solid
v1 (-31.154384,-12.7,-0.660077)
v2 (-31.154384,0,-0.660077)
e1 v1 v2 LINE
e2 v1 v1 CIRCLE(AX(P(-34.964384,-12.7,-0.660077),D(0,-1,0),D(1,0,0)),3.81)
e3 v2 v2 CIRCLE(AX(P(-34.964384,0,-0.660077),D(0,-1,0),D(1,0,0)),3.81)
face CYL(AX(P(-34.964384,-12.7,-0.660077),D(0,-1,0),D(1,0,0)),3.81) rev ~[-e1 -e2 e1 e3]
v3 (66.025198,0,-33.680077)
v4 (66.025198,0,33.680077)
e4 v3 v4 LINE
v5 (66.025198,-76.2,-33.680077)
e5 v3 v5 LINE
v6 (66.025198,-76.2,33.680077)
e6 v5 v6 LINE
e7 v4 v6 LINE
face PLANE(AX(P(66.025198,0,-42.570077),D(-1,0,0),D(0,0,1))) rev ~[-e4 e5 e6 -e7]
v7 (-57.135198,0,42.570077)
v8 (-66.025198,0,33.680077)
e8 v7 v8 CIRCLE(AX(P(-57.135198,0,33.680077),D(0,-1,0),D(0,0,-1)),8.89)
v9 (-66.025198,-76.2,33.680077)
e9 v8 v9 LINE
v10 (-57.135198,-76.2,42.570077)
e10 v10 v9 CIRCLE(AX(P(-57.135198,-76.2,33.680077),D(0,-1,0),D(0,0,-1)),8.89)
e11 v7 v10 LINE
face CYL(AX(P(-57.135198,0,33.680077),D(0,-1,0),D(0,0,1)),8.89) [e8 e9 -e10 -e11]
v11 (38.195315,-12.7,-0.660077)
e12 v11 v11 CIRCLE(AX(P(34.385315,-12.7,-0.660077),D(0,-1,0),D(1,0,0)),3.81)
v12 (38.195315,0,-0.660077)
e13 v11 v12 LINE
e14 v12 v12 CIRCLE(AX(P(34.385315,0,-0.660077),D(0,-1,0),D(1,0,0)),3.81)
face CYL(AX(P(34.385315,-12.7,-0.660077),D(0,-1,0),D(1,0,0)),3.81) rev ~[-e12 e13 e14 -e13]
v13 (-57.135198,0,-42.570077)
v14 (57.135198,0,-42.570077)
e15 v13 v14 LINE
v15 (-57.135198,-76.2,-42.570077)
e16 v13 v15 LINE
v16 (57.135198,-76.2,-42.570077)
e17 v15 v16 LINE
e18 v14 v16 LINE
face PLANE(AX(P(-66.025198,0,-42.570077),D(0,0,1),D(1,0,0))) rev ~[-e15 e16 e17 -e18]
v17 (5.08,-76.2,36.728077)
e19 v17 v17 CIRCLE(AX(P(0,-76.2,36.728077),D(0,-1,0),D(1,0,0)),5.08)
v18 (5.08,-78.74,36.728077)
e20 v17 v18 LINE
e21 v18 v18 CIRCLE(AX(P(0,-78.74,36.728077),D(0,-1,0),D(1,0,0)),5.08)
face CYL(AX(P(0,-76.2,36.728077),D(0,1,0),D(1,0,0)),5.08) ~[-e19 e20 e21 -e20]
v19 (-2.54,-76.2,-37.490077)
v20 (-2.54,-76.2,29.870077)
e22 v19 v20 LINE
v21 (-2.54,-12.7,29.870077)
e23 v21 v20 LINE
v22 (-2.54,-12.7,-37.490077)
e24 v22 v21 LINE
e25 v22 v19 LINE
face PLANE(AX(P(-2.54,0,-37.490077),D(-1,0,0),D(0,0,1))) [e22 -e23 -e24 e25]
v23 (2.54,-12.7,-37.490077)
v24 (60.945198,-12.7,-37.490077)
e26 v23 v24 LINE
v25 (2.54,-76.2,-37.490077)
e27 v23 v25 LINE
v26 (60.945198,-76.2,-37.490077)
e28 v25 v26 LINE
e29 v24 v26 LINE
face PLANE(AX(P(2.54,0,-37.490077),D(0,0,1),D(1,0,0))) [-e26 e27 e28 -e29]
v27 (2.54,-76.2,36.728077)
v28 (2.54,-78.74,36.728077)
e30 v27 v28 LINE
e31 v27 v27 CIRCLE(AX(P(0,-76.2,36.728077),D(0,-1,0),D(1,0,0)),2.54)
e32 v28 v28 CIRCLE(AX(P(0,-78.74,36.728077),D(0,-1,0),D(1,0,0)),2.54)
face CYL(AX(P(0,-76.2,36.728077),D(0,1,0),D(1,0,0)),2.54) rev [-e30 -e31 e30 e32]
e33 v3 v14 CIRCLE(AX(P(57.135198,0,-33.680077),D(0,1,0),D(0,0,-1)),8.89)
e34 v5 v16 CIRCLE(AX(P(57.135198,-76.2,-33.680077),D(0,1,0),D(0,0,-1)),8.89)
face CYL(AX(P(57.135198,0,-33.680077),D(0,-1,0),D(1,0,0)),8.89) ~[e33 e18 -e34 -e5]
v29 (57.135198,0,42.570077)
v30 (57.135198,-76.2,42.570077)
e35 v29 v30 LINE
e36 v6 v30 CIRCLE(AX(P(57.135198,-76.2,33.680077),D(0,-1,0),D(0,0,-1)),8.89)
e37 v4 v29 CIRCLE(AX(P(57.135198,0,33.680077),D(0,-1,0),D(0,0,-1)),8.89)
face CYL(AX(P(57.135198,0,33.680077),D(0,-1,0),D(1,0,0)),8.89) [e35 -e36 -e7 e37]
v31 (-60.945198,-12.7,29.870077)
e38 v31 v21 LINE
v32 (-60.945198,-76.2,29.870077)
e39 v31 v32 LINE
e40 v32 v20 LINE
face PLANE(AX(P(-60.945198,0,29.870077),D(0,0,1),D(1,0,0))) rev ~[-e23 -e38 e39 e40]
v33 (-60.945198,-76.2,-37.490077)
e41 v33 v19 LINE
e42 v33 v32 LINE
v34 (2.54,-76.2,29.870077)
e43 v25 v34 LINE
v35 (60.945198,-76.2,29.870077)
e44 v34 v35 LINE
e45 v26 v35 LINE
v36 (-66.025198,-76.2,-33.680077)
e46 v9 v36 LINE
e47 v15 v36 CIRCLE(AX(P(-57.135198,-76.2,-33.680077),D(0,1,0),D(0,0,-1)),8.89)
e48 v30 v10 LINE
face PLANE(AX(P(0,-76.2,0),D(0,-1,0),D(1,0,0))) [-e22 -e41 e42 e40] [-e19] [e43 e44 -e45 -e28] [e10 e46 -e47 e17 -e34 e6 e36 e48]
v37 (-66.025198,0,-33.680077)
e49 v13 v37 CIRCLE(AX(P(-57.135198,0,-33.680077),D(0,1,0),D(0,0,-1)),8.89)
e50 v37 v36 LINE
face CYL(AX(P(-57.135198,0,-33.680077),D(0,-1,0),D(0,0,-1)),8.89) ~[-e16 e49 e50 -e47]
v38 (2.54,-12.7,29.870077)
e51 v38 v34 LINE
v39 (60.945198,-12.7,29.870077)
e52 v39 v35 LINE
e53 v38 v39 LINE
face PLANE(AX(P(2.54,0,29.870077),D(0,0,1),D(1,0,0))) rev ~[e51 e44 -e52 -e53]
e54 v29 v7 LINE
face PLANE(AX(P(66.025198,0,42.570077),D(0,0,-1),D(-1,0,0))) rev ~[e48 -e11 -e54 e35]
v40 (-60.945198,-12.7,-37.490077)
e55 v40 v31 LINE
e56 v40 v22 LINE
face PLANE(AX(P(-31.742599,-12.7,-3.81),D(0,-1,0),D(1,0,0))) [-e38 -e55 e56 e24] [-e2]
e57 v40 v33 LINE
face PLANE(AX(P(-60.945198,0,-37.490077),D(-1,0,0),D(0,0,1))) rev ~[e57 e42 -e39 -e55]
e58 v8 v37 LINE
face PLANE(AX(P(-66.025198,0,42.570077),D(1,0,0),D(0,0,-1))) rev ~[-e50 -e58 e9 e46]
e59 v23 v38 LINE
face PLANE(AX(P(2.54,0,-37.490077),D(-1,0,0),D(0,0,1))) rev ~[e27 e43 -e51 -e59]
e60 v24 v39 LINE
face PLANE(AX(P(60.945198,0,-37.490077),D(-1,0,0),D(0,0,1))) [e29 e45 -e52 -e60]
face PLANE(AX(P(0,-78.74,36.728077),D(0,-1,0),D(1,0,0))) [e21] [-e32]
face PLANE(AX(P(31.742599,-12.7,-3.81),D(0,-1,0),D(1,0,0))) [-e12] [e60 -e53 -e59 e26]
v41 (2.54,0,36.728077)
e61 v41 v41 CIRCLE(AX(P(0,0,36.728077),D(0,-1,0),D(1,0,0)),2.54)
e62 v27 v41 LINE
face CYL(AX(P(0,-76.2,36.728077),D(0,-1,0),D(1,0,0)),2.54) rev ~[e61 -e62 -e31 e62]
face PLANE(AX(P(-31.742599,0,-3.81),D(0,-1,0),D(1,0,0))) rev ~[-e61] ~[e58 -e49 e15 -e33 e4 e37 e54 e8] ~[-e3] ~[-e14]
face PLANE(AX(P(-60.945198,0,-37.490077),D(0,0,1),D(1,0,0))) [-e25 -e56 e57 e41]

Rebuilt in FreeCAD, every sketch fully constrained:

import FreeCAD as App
import Part
import Sketcher
from FreeCAD import Vector
Q = App.Units.Quantity


def edges_at(feature, points):
    """Names of the edges that pass closest to the given points."""
    edges = feature.Shape.Edges
    near = lambda p: min(range(len(edges)), key=lambda i: edges[i].distToShape(Part.Vertex(*p))[0])
    return sorted({f"Edge{near(p) + 1}" for p in points})


def add_polygon(sketch, points):
    """Adds a closed chain of lines whose ends are joined by coincident constraints."""
    first, n = sketch.GeometryCount, len(points)
    for a, b in zip(points, points[1:] + points[:1]):
        sketch.addGeometry(Part.LineSegment(App.Vector(*a, 0), App.Vector(*b, 0)), False)
    for i in range(n):
        sketch.addConstraint(Sketcher.Constraint("Coincident", first + i, 2, first + (i + 1) % n, 1))

doc = App.newDocument("Part")
body = doc.addObject("PartDesign::Body", "Body")

# Sketch on XZ plane
sketch1 = body.newObject("Sketcher::SketchObject", "Sketch")
sketch1.AttachmentSupport = (doc.getObject("XZ_Plane"), [""])
sketch1.MapMode = "FlatFace"
add_polygon(sketch1, [(66.025198, -42.570077), (66.025198, 42.570077), (-66.025198, 42.570077), (-66.025198, -42.570077)])  # lines 0-3
add_polygon(sketch1, [(-2.54, -37.490077), (-60.945198, -37.490077), (-60.945198, 29.870077), (-2.54, 29.870077)])  # lines 4-7
add_polygon(sketch1, [(60.945198, -37.490077), (2.54, -37.490077), (2.54, 29.870077), (60.945198, 29.870077)])  # lines 8-11
sketch1.addConstraint([
    Sketcher.Constraint("Vertical", 0),
    Sketcher.Constraint("Horizontal", 1),
    Sketcher.Constraint("Vertical", 2),
    Sketcher.Constraint("Horizontal", 3),
    Sketcher.Constraint("Horizontal", 4),
    Sketcher.Constraint("Vertical", 5),
    Sketcher.Constraint("Horizontal", 6),
    Sketcher.Constraint("Vertical", 7),
    Sketcher.Constraint("Horizontal", 8),
    Sketcher.Constraint("Vertical", 9),
    Sketcher.Constraint("Horizontal", 10),
    Sketcher.Constraint("Vertical", 11),
    Sketcher.Constraint("Symmetric", 0, 2, 2, 2, -1, 1),
    Sketcher.Constraint("Symmetric", 7, 2, 8, 2, -2),
    Sketcher.Constraint("Symmetric", 5, 2, 10, 2, -2),
    Sketcher.Constraint("DistanceX", 6, 2, -1, 1, Q("0.1 in")),
    Sketcher.Constraint("DistanceX", 2, 2, 4, 2, Q("0.2 in")),
    Sketcher.Constraint("DistanceY", 2, 2, 4, 2, Q("0.2 in")),
    Sketcher.Constraint("DistanceY", 5, 2, 1, 2, Q("0.5 in")),
    Sketcher.Constraint("DistanceX", -1, 1, 0, 2, 66.025198),
    Sketcher.Constraint("DistanceY", 0, 1, 0, 2, 85.140154),
])
pad1 = body.newObject("PartDesign::Pad", "Pad")
pad1.Profile = sketch1
pad1.Length = Q("3 in")

# Sketch on XZ plane
sketch2 = body.newObject("Sketcher::SketchObject", "Sketch001")
sketch2.AttachmentSupport = (doc.getObject("XZ_Plane"), [""])
sketch2.MapMode = "FlatFace"
add_polygon(sketch2, [(-60.945198, 29.870077), (-60.945198, -37.490077), (-2.54, -37.490077), (-2.54, 29.870077)])  # lines 0-3
add_polygon(sketch2, [(2.54, 29.870077), (2.54, -37.490077), (60.945198, -37.490077), (60.945198, 29.870077)])  # lines 4-7
sketch2.addConstraint([
    Sketcher.Constraint("Vertical", 0),
    Sketcher.Constraint("Horizontal", 1),
    Sketcher.Constraint("Vertical", 2),
    Sketcher.Constraint("Horizontal", 3),
    Sketcher.Constraint("Vertical", 4),
    Sketcher.Constraint("Horizontal", 5),
    Sketcher.Constraint("Vertical", 6),
    Sketcher.Constraint("Horizontal", 7),
    Sketcher.Constraint("Symmetric", 1, 2, 4, 2, -2),
    Sketcher.Constraint("Symmetric", 3, 2, 6, 2, -2),
    Sketcher.Constraint("DistanceX", 1, 2, -1, 1, Q("0.1 in")),
    Sketcher.Constraint("DistanceX", 1, 1, 1, 2, 58.405198),
    Sketcher.Constraint("DistanceY", 0, 2, 0, 1, 67.360154),
    Sketcher.Constraint("DistanceY", 0, 2, -1, 1, 37.490077),
])
pad2 = body.newObject("PartDesign::Pad", "Pad001")
pad2.Profile = sketch2
pad2.Length = Q("0.5 in")
doc.recompute()

fillet = body.newObject("PartDesign::Fillet", "Fillet")
fillet.Base = (pad2, edges_at(pad2, [
    (66.025, -38.1, 42.57),
    (-66.025, -38.1, -42.57),
    (66.025, -38.1, -42.57),
    (-66.025, -38.1, 42.57),
]))
fillet.Radius = Q("0.35 in")

# Sketch on XZ plane
sketch3 = body.newObject("Sketcher::SketchObject", "Sketch002")
sketch3.AttachmentSupport = (doc.getObject("XZ_Plane"), [""])
sketch3.MapMode = "FlatFace"
sketch3.AttachmentOffset = App.Placement(Vector(0, 0, 0.5 * 25.4), App.Rotation())
sketch3.addGeometry([
    Part.Circle(Vector(-34.964384, -0.660077, 0), Vector(0, 0, 1), 3.81),
    Part.Circle(Vector(34.385315, -0.660077, 0), Vector(0, 0, 1), 3.81),
], False)
sketch3.addConstraint([
    Sketcher.Constraint("Equal", 0, 1),
    Sketcher.Constraint("Horizontal", 0, 3, 1, 3),
    Sketcher.Constraint("Diameter", 0, Q("0.3 in")),
    Sketcher.Constraint("DistanceX", 0, 3, 1, 3, 69.349699),
    Sketcher.Constraint("DistanceX", 0, 3, -1, 1, 34.964384),
    Sketcher.Constraint("DistanceY", 0, 3, -1, 1, 0.660077),
])
pocket1 = body.newObject("PartDesign::Pocket", "Pocket")
pocket1.Profile = sketch3
pocket1.Length = Q("1 in")

# Sketch on XZ plane
sketch4 = body.newObject("Sketcher::SketchObject", "Sketch003")
sketch4.AttachmentSupport = (doc.getObject("XZ_Plane"), [""])
sketch4.MapMode = "FlatFace"
sketch4.AttachmentOffset = App.Placement(Vector(0, 0, 3 * 25.4), App.Rotation())
sketch4.addGeometry(Part.Circle(Vector(0, 36.728077, 0), Vector(0, 0, 1), 2.54), False)
sketch4.addConstraint([
    Sketcher.Constraint("PointOnObject", 0, 3, -2),
    Sketcher.Constraint("Diameter", 0, Q("0.2 in")),
    Sketcher.Constraint("DistanceY", -1, 1, 0, 3, 36.728077),
])
pocket2 = body.newObject("PartDesign::Pocket", "Pocket001")
pocket2.Profile = sketch4
pocket2.Type = "ThroughAll"

# Sketch on XZ plane
sketch5 = body.newObject("Sketcher::SketchObject", "Sketch004")
sketch5.AttachmentSupport = (doc.getObject("XZ_Plane"), [""])
sketch5.MapMode = "FlatFace"
sketch5.AttachmentOffset = App.Placement(Vector(0, 0, 3 * 25.4), App.Rotation())
sketch5.addGeometry([
    Part.Circle(Vector(0, 36.728077, 0), Vector(0, 0, 1), 5.08),
    Part.Circle(Vector(0, 36.728077, 0), Vector(0, 0, 1), 2.54),
], False)
sketch5.addConstraint([
    Sketcher.Constraint("Coincident", 1, 3, 0, 3),
    Sketcher.Constraint("PointOnObject", 0, 3, -2),
    Sketcher.Constraint("Diameter", 0, Q("0.4 in")),
    Sketcher.Constraint("Diameter", 1, Q("0.2 in")),
    Sketcher.Constraint("DistanceY", -1, 1, 0, 3, 36.728077),
])
pad3 = body.newObject("PartDesign::Pad", "Pad002")
pad3.Profile = sketch5
pad3.Length = Q("0.1 in")

doc.recompute()
